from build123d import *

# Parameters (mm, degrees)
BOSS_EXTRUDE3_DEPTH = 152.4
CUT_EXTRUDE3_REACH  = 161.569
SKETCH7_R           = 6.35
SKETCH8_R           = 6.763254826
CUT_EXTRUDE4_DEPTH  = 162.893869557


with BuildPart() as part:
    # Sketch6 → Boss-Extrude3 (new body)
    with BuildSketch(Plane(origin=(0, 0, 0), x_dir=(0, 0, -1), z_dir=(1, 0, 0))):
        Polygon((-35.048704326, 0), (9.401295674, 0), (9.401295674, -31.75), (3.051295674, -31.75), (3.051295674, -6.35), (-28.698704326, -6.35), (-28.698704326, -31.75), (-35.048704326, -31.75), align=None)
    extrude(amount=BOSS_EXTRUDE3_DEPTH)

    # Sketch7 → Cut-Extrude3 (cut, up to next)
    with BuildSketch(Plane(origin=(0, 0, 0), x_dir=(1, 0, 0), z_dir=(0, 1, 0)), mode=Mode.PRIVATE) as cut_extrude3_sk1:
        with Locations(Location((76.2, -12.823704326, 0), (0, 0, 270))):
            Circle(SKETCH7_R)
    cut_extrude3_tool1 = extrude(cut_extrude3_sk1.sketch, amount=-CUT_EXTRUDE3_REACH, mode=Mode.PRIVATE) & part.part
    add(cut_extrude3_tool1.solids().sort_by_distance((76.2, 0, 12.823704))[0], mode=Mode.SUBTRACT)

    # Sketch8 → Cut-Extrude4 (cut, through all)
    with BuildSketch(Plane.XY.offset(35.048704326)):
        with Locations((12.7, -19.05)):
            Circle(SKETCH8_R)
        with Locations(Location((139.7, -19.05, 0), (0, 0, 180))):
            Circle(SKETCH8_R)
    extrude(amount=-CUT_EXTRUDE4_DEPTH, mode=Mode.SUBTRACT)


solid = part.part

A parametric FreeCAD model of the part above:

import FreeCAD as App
import Part
import Sketcher
Q = App.Units.Quantity


def add_polygon(sketch, points):
    """Adds a closed chain of lines whose ends are joined by coincident constraints."""
    first, n = sketch.GeometryCount, len(points)
    for a, b in zip(points, points[1:] + points[:1]):
        sketch.addGeometry(Part.LineSegment(App.Vector(*a, 0), App.Vector(*b, 0)), False)
    for i in range(n):
        sketch.addConstraint(Sketcher.Constraint("Coincident", first + i, 2, first + (i + 1) % n, 1))

doc = App.newDocument("Part")
body = doc.addObject("PartDesign::Body", "Body")

sketch1 = doc.addObject("Sketcher::SketchObject", "Sketch")
body.addObject(sketch1)
sketch1.AttachmentSupport = (doc.YZ_Plane, [""])
sketch1.MapMode = "FlatFace"
add_polygon(sketch1, [(0, -9), (0, 35), (-32, 35), (-32, 29), (-6, 29), (-6, -3), (-32, -3), (-32, -9)])
sketch1.addConstraint([
    Sketcher.Constraint("Vertical", 0),
    Sketcher.Constraint("Horizontal", 1),
    Sketcher.Constraint("Vertical", 2),
    Sketcher.Constraint("Horizontal", 3),
    Sketcher.Constraint("Vertical", 4),
    Sketcher.Constraint("Horizontal", 5),
    Sketcher.Constraint("Vertical", 6),
    Sketcher.Constraint("Horizontal", 7),
    Sketcher.Constraint("PointOnObject", 0, 2, -2),
    Sketcher.Constraint("Vertical", 2, 2, 5, 2),
    Sketcher.Constraint("Equal", 7, 4),
    Sketcher.Constraint("Equal", 2, 6),
    Sketcher.Constraint("DistanceX", 3, 1, 3, 2, Q("1 in")),
    Sketcher.Constraint("DistanceX", 1, 2, 1, 1, Q("1.25 in")),
    Sketcher.Constraint("DistanceY", 0, 1, 0, 2, Q("1.75 in")),
    Sketcher.Constraint("DistanceY", -1, 1, 0, 2, Q("35.048704 mm")),
])
pad1 = doc.addObject("PartDesign::Pad", "Pad")
body.addObject(pad1)
pad1.Profile = sketch1
pad1.Length = Q("6 in")

sketch2 = doc.addObject("Sketcher::SketchObject", "Sketch001")
body.addObject(sketch2)
sketch2.AttachmentSupport = (doc.XZ_Plane, [""])
sketch2.MapMode = "FlatFace"
sketch2.addGeometry(Part.Circle(App.Vector(76, 13, 0), App.Vector(0, 0, 1), 6), False)
sketch2.addConstraint([
    Sketcher.Constraint("Diameter", 0, Q("0.5 in")),
    Sketcher.Constraint("DistanceX", -1, 1, 0, 3, Q("3 in")),
    Sketcher.Constraint("DistanceY", -1, 1, 0, 3, Q("12.823704 mm")),
])
pocket1 = doc.addObject("PartDesign::Pocket", "Pocket")
body.addObject(pocket1)
pocket1.Profile = sketch2
pocket1.Type = "UpToFirst"
pocket1.Reversed = True

sketch3 = doc.addObject("Sketcher::SketchObject", "Sketch002")
body.addObject(sketch3)
sketch3.AttachmentSupport = (doc.XY_Plane, [""])
sketch3.MapMode = "FlatFace"
sketch3.AttachmentOffset = App.Placement(App.Vector(0, 0, 35.048704), App.Rotation())
sketch3.addGeometry([
    Part.Circle(App.Vector(13, -19, 0), App.Vector(0, 0, 1), 7),
    Part.Circle(App.Vector(140, -19, 0), App.Vector(0, 0, 1), 7),
], False)
sketch3.addConstraint([
    Sketcher.Constraint("Equal", 0, 1),
    Sketcher.Constraint("Horizontal", 0, 3, 1, 3),
    Sketcher.Constraint("DistanceX", 0, 3, 1, 3, Q("5 in")),
    Sketcher.Constraint("DistanceX", -1, 1, 0, 3, Q("0.5 in")),
    Sketcher.Constraint("DistanceY", 0, 3, -1, 1, Q("0.75 in")),
    Sketcher.Constraint("Diameter", 0, Q("13.52651 mm")),
])
pocket2 = doc.addObject("PartDesign::Pocket", "Pocket001")
body.addObject(pocket2)
pocket2.Profile = sketch3
pocket2.Type = "ThroughAll"

doc.recompute()
